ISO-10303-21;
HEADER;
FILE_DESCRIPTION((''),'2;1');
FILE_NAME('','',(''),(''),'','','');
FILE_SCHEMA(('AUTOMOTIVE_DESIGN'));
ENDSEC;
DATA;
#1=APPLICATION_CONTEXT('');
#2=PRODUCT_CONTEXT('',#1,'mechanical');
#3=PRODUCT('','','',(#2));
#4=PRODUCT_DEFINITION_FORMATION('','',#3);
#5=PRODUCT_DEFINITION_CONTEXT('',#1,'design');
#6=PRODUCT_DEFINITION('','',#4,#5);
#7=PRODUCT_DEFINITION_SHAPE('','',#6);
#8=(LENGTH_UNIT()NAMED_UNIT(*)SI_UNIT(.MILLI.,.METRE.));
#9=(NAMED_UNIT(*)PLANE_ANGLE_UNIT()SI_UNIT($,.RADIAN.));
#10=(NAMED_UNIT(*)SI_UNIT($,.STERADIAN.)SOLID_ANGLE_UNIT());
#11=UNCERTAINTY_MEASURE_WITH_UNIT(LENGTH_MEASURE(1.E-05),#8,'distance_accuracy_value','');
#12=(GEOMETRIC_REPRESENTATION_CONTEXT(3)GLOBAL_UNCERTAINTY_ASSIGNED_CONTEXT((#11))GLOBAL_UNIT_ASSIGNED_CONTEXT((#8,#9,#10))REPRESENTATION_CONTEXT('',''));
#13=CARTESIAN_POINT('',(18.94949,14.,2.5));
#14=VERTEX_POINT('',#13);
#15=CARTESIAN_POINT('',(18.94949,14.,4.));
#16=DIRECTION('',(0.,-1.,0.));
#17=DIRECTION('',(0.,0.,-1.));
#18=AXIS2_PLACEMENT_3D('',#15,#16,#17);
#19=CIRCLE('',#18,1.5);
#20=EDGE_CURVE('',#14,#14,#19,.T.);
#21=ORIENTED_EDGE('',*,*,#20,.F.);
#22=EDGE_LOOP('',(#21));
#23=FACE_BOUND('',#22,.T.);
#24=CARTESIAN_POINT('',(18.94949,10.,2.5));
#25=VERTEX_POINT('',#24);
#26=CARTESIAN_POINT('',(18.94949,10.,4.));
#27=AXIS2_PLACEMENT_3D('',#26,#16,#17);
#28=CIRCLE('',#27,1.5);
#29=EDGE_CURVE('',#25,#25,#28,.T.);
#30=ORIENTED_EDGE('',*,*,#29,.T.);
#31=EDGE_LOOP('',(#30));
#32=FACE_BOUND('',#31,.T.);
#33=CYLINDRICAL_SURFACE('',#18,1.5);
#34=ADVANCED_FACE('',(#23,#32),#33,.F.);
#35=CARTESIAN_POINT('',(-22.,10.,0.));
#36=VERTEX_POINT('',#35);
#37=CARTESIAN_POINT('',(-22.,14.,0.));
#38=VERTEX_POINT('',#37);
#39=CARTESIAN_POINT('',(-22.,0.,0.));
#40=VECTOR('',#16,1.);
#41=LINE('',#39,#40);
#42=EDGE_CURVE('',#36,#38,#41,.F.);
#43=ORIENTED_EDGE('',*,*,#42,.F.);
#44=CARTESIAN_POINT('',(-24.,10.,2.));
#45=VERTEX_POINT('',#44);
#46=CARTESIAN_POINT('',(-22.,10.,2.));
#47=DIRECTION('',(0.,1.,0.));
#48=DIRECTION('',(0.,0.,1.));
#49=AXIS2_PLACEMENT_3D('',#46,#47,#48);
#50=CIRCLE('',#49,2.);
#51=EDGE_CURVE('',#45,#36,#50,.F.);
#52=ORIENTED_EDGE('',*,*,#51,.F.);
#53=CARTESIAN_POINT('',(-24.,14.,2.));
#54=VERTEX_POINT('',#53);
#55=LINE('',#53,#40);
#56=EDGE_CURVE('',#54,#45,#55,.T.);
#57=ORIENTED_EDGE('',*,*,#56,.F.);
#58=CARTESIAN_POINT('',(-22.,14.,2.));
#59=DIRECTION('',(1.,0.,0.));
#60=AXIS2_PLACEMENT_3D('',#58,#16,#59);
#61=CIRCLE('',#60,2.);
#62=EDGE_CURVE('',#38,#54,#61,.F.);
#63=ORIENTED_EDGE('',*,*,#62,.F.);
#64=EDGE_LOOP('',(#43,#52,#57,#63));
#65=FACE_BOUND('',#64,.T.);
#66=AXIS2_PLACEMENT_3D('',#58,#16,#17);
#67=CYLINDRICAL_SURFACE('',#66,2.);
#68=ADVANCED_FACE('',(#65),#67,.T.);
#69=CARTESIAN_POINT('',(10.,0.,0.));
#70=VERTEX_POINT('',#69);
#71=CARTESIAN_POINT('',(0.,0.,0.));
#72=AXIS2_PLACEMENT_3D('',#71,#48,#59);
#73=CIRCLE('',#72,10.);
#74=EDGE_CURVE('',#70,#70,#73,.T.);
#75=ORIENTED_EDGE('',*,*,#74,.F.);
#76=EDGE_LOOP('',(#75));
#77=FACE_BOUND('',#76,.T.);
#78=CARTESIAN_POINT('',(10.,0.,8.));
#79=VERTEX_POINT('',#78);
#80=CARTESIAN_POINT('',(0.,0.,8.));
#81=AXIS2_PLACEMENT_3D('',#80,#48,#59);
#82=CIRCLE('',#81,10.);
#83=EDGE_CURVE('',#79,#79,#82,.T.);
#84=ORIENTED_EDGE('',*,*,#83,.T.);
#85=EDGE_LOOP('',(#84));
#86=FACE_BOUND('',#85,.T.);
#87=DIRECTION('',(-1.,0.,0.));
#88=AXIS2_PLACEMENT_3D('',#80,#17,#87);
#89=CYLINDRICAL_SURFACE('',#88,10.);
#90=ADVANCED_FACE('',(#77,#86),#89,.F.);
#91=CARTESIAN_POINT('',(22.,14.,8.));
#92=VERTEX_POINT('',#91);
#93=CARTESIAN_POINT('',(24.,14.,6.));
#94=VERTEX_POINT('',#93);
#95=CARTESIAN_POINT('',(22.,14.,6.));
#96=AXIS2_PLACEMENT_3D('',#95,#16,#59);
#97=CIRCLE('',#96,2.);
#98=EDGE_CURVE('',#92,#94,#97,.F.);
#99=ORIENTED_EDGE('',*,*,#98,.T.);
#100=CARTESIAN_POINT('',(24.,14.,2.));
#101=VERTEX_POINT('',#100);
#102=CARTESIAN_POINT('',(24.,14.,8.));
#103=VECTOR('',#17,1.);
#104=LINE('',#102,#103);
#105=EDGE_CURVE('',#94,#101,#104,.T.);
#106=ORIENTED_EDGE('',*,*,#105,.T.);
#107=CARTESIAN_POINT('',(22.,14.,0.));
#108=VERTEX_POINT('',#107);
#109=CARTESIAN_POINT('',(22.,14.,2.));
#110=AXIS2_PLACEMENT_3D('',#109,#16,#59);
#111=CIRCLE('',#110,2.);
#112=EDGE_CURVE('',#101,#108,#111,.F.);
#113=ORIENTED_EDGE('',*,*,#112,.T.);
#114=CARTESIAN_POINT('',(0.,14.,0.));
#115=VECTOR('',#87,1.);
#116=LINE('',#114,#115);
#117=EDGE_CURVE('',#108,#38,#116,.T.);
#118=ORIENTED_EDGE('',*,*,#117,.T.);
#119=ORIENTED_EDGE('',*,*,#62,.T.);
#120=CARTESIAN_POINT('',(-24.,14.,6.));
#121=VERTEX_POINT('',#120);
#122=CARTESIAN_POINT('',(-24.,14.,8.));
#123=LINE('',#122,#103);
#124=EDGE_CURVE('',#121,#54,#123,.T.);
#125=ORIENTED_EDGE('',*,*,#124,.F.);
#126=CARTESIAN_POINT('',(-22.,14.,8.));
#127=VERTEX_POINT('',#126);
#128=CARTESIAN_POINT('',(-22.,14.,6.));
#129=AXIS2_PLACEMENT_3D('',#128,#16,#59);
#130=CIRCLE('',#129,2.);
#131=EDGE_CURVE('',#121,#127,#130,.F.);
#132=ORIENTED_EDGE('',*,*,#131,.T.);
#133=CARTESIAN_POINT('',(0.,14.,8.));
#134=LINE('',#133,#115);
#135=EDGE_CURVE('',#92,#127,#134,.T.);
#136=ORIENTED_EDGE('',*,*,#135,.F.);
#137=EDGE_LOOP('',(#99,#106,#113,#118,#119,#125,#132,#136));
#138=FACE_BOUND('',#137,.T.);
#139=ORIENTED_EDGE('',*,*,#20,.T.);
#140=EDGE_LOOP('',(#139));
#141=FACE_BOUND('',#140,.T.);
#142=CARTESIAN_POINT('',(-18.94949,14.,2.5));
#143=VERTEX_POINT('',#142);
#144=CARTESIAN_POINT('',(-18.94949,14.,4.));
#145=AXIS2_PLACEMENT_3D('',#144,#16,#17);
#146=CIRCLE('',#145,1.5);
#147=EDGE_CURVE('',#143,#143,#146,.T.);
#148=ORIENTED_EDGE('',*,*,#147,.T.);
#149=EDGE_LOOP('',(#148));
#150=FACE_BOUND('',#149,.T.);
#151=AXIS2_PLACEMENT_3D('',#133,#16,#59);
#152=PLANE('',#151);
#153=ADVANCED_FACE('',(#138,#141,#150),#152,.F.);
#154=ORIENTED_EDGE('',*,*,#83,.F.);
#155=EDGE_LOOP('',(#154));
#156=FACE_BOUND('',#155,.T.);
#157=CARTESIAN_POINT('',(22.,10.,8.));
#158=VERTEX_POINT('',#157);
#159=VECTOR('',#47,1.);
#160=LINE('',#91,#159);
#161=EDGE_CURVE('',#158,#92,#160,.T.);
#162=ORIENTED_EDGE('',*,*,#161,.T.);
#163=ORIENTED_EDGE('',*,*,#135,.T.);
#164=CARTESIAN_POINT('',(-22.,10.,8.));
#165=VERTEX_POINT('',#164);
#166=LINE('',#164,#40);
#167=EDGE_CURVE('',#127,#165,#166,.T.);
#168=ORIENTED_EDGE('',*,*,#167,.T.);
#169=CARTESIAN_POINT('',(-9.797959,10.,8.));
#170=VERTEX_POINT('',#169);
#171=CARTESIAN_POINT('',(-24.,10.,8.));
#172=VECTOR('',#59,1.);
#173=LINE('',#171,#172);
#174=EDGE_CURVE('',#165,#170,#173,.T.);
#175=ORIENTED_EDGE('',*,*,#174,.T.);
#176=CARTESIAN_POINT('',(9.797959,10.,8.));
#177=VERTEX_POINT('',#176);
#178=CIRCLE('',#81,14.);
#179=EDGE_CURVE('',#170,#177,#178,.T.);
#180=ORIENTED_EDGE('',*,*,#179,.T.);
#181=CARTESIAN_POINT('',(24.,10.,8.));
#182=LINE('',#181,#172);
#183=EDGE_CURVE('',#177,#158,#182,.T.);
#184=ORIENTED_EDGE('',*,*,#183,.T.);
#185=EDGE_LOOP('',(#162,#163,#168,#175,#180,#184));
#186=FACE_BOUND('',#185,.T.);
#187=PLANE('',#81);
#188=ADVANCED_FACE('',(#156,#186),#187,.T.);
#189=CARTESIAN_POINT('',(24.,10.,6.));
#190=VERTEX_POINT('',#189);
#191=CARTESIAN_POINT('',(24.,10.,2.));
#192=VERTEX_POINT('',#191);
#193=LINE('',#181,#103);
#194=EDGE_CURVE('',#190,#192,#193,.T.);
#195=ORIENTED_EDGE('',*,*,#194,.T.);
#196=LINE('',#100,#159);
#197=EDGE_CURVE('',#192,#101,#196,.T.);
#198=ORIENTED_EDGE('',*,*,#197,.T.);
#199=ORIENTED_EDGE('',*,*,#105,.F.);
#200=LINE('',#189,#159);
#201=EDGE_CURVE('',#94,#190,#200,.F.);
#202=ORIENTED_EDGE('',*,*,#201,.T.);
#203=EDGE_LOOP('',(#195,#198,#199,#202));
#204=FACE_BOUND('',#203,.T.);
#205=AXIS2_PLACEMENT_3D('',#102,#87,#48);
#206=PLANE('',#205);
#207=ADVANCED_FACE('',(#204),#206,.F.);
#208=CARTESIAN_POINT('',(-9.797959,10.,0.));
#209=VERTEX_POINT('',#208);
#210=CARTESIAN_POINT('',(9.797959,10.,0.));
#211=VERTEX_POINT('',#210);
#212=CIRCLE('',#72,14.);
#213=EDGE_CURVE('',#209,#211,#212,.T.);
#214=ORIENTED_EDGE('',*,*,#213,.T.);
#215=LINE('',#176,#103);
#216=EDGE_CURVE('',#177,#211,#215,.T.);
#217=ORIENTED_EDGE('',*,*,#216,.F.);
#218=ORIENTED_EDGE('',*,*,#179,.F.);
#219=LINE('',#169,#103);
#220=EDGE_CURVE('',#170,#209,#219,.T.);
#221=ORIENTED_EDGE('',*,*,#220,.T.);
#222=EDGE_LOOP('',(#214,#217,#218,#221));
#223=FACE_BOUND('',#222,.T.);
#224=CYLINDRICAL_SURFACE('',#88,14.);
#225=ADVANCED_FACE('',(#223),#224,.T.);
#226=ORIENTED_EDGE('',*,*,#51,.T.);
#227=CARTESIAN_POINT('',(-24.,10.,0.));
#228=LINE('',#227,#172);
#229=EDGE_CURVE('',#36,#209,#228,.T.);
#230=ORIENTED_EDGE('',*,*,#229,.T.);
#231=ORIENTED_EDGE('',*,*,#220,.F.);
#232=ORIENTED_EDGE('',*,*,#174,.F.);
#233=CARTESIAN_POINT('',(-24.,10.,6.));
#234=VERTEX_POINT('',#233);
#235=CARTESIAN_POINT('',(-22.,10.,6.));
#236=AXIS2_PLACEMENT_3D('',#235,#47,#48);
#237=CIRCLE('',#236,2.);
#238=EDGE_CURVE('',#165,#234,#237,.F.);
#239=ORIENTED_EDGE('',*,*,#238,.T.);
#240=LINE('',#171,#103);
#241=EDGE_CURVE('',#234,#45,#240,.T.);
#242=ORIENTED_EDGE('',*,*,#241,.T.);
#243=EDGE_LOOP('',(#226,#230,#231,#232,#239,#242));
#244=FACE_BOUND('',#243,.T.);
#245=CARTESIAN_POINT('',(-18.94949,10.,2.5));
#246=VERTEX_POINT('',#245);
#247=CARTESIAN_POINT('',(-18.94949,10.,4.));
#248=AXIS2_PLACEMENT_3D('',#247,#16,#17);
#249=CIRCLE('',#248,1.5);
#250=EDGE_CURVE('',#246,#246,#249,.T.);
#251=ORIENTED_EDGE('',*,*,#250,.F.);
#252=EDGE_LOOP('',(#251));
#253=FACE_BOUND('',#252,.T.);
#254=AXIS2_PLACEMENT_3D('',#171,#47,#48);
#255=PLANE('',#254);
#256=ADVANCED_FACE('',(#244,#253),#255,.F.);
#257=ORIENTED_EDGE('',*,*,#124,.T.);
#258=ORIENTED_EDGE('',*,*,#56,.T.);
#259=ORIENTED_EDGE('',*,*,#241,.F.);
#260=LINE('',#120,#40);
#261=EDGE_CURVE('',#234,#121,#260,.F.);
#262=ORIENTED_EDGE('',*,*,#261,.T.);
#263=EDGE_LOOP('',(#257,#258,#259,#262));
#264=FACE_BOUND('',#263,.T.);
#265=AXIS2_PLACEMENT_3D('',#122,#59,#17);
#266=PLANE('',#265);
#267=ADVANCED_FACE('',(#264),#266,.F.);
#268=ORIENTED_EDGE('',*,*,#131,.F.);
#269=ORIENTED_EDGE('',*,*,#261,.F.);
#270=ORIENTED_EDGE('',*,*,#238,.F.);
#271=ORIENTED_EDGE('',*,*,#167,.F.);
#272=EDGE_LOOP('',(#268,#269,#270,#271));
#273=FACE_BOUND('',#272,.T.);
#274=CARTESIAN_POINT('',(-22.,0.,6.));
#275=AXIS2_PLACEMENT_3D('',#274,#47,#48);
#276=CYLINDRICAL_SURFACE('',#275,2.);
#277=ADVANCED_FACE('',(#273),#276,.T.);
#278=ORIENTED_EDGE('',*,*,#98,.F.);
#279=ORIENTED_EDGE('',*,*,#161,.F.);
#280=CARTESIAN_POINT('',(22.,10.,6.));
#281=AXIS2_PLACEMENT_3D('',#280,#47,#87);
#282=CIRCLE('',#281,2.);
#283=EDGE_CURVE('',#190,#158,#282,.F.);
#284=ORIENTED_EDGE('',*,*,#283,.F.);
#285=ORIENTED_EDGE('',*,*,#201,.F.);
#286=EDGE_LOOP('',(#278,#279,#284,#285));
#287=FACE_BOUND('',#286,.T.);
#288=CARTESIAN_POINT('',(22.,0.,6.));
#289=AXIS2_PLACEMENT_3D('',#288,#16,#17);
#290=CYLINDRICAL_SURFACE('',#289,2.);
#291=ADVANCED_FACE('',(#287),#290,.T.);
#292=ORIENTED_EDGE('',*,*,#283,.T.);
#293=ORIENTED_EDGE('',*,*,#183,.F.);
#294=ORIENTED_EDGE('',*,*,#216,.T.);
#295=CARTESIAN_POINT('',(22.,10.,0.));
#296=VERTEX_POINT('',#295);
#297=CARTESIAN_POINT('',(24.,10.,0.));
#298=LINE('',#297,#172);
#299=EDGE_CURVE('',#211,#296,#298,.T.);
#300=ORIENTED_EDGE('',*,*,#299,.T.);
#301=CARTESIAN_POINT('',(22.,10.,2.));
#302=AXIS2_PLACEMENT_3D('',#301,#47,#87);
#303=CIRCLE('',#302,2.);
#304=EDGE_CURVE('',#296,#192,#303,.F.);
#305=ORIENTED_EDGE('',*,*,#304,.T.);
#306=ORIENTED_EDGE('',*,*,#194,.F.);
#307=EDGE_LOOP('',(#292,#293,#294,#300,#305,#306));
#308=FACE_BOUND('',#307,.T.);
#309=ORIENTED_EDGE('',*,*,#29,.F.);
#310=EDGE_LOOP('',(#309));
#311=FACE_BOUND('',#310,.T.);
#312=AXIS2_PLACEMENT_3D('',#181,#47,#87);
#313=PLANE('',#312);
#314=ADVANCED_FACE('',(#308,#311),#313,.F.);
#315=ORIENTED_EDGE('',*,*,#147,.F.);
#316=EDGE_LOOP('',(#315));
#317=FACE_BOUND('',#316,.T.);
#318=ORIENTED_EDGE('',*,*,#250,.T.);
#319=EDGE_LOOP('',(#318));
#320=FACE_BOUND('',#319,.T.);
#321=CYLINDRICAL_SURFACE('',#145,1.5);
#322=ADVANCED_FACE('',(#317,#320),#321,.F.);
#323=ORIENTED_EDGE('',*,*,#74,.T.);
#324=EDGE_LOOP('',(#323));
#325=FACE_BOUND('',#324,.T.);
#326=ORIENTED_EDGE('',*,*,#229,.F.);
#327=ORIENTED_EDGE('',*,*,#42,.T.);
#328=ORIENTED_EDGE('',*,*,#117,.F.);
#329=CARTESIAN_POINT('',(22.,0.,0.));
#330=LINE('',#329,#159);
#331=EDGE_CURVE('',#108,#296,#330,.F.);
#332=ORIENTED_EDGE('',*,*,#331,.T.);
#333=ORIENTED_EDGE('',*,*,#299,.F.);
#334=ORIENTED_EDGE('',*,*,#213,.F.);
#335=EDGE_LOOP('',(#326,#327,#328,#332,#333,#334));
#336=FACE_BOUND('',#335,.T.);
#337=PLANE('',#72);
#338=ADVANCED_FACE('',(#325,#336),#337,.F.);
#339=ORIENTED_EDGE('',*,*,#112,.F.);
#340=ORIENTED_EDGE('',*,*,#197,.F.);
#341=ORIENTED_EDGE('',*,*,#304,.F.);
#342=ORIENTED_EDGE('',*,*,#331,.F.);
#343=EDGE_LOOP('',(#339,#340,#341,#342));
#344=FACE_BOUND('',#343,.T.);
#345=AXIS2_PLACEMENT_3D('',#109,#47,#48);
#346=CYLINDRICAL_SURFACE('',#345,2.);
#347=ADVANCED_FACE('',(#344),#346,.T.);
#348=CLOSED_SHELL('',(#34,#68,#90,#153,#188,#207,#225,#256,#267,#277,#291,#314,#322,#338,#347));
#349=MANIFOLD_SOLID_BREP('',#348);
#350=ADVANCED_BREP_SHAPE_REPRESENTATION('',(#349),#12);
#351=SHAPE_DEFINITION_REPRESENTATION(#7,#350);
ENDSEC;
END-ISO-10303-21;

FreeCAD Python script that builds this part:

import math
import FreeCAD as App
import Part
import Sketcher
from FreeCAD import Vector
Q = App.Units.Quantity


def edges_at(feature, points):
    """Names of the edges that pass closest to the given points."""
    edges = feature.Shape.Edges
    near = lambda p: min(range(len(edges)), key=lambda i: edges[i].distToShape(Part.Vertex(*p))[0])
    return sorted({f"Edge{near(p) + 1}" for p in points})

doc = App.newDocument("Part")
body = doc.addObject("PartDesign::Body", "Body")

# Sketch on XY plane
sketch1 = body.newObject("Sketcher::SketchObject", "Sketch")
sketch1.AttachmentSupport = (doc.getObject("XY_Plane"), [""])
sketch1.MapMode = "FlatFace"
sketch1.addGeometry(Part.LineSegment(Vector(24, 10, 0), Vector(24, 14, 0)), False)
sketch1.addGeometry(Part.LineSegment(Vector(24, 14, 0), Vector(-24, 14, 0)), False)
sketch1.addGeometry(Part.LineSegment(Vector(-24, 14, 0), Vector(-24, 10, 0)), False)
sketch1.addGeometry(Part.LineSegment(Vector(-24, 10, 0), Vector(-9.797959, 10, 0)), False)
sketch1.addGeometry(Part.ArcOfCircle(Part.Circle(Vector(0, 0, 0), Vector(0, 0, 1), 14), math.radians(134.415309), math.radians(405.584691)), False)
sketch1.addGeometry(Part.LineSegment(Vector(9.797959, 10, 0), Vector(24, 10, 0)), False)
sketch1.addGeometry(Part.Circle(Vector(0, 0, 0), Vector(0, 0, 1), 10), False)
sketch1.addConstraint(Sketcher.Constraint("Coincident", 0, 2, 1, 1))
sketch1.addConstraint(Sketcher.Constraint("Coincident", 1, 2, 2, 1))
sketch1.addConstraint(Sketcher.Constraint("Coincident", 2, 2, 3, 1))
sketch1.addConstraint(Sketcher.Constraint("Coincident", 3, 2, 4, 1))
sketch1.addConstraint(Sketcher.Constraint("Coincident", 4, 2, 5, 1))
sketch1.addConstraint(Sketcher.Constraint("Coincident", 5, 2, 0, 1))
sketch1.addConstraint(Sketcher.Constraint("Vertical", 0))
sketch1.addConstraint(Sketcher.Constraint("Horizontal", 1))
sketch1.addConstraint(Sketcher.Constraint("Vertical", 2))
sketch1.addConstraint(Sketcher.Constraint("Horizontal", 3))
sketch1.addConstraint(Sketcher.Constraint("Horizontal", 5))
sketch1.addConstraint(Sketcher.Constraint("Coincident", 4, 3, -1, 1))
sketch1.addConstraint(Sketcher.Constraint("Coincident", 6, 3, -1, 1))
sketch1.addConstraint(Sketcher.Constraint("Symmetric", 2, 2, 5, 2, -2))
sketch1.addConstraint(Sketcher.Constraint("Diameter", 6, Q("20 mm")))
sketch1.addConstraint(Sketcher.Constraint("Radius", 4, Q("14 mm")))
sketch1.addConstraint(Sketcher.Constraint("DistanceX", 1, 2, 1, 1, Q("48 mm")))
sketch1.addConstraint(Sketcher.Constraint("DistanceY", 0, 1, 0, 2, Q("4 mm")))
sketch1.addConstraint(Sketcher.Constraint("DistanceY", -1, 1, 0, 2, Q("14 mm")))
pad1 = body.newObject("PartDesign::Pad", "Pad")
pad1.Profile = sketch1
pad1.Length = 8
doc.recompute()

fillet = body.newObject("PartDesign::Fillet", "Fillet")
fillet.Base = (pad1, edges_at(pad1, [
    (24, 12, 8),
    (-24, 12, 8),
    (-24, 12, 0),
    (24, 12, 0),
]))
fillet.Radius = 2

# Sketch on XZ plane
sketch2 = body.newObject("Sketcher::SketchObject", "Sketch001")
sketch2.AttachmentSupport = (doc.getObject("XZ_Plane"), [""])
sketch2.MapMode = "FlatFace"
sketch2.AttachmentOffset = App.Placement(Vector(0, 0, -10), App.Rotation())
sketch2.addGeometry(Part.Circle(Vector(-18.94949, 4, 0), Vector(0, 0, 1), 1.5), False)
sketch2.addGeometry(Part.Circle(Vector(18.94949, 4, 0), Vector(0, 0, 1), 1.5), False)
sketch2.addConstraint(Sketcher.Constraint("Equal", 0, 1))
sketch2.addConstraint(Sketcher.Constraint("Symmetric", 0, 3, 1, 3, -2))
sketch2.addConstraint(Sketcher.Constraint("Diameter", 0, Q("3 mm")))
sketch2.addConstraint(Sketcher.Constraint("DistanceY", -1, 1, 0, 3, Q("4 mm")))
sketch2.addConstraint(Sketcher.Constraint("DistanceX", 0, 3, -1, 1, Q("18.94949 mm")))
pocket1 = body.newObject("PartDesign::Pocket", "Pocket")
pocket1.Profile = sketch2
pocket1.Type = "ThroughAll"

doc.recompute()
